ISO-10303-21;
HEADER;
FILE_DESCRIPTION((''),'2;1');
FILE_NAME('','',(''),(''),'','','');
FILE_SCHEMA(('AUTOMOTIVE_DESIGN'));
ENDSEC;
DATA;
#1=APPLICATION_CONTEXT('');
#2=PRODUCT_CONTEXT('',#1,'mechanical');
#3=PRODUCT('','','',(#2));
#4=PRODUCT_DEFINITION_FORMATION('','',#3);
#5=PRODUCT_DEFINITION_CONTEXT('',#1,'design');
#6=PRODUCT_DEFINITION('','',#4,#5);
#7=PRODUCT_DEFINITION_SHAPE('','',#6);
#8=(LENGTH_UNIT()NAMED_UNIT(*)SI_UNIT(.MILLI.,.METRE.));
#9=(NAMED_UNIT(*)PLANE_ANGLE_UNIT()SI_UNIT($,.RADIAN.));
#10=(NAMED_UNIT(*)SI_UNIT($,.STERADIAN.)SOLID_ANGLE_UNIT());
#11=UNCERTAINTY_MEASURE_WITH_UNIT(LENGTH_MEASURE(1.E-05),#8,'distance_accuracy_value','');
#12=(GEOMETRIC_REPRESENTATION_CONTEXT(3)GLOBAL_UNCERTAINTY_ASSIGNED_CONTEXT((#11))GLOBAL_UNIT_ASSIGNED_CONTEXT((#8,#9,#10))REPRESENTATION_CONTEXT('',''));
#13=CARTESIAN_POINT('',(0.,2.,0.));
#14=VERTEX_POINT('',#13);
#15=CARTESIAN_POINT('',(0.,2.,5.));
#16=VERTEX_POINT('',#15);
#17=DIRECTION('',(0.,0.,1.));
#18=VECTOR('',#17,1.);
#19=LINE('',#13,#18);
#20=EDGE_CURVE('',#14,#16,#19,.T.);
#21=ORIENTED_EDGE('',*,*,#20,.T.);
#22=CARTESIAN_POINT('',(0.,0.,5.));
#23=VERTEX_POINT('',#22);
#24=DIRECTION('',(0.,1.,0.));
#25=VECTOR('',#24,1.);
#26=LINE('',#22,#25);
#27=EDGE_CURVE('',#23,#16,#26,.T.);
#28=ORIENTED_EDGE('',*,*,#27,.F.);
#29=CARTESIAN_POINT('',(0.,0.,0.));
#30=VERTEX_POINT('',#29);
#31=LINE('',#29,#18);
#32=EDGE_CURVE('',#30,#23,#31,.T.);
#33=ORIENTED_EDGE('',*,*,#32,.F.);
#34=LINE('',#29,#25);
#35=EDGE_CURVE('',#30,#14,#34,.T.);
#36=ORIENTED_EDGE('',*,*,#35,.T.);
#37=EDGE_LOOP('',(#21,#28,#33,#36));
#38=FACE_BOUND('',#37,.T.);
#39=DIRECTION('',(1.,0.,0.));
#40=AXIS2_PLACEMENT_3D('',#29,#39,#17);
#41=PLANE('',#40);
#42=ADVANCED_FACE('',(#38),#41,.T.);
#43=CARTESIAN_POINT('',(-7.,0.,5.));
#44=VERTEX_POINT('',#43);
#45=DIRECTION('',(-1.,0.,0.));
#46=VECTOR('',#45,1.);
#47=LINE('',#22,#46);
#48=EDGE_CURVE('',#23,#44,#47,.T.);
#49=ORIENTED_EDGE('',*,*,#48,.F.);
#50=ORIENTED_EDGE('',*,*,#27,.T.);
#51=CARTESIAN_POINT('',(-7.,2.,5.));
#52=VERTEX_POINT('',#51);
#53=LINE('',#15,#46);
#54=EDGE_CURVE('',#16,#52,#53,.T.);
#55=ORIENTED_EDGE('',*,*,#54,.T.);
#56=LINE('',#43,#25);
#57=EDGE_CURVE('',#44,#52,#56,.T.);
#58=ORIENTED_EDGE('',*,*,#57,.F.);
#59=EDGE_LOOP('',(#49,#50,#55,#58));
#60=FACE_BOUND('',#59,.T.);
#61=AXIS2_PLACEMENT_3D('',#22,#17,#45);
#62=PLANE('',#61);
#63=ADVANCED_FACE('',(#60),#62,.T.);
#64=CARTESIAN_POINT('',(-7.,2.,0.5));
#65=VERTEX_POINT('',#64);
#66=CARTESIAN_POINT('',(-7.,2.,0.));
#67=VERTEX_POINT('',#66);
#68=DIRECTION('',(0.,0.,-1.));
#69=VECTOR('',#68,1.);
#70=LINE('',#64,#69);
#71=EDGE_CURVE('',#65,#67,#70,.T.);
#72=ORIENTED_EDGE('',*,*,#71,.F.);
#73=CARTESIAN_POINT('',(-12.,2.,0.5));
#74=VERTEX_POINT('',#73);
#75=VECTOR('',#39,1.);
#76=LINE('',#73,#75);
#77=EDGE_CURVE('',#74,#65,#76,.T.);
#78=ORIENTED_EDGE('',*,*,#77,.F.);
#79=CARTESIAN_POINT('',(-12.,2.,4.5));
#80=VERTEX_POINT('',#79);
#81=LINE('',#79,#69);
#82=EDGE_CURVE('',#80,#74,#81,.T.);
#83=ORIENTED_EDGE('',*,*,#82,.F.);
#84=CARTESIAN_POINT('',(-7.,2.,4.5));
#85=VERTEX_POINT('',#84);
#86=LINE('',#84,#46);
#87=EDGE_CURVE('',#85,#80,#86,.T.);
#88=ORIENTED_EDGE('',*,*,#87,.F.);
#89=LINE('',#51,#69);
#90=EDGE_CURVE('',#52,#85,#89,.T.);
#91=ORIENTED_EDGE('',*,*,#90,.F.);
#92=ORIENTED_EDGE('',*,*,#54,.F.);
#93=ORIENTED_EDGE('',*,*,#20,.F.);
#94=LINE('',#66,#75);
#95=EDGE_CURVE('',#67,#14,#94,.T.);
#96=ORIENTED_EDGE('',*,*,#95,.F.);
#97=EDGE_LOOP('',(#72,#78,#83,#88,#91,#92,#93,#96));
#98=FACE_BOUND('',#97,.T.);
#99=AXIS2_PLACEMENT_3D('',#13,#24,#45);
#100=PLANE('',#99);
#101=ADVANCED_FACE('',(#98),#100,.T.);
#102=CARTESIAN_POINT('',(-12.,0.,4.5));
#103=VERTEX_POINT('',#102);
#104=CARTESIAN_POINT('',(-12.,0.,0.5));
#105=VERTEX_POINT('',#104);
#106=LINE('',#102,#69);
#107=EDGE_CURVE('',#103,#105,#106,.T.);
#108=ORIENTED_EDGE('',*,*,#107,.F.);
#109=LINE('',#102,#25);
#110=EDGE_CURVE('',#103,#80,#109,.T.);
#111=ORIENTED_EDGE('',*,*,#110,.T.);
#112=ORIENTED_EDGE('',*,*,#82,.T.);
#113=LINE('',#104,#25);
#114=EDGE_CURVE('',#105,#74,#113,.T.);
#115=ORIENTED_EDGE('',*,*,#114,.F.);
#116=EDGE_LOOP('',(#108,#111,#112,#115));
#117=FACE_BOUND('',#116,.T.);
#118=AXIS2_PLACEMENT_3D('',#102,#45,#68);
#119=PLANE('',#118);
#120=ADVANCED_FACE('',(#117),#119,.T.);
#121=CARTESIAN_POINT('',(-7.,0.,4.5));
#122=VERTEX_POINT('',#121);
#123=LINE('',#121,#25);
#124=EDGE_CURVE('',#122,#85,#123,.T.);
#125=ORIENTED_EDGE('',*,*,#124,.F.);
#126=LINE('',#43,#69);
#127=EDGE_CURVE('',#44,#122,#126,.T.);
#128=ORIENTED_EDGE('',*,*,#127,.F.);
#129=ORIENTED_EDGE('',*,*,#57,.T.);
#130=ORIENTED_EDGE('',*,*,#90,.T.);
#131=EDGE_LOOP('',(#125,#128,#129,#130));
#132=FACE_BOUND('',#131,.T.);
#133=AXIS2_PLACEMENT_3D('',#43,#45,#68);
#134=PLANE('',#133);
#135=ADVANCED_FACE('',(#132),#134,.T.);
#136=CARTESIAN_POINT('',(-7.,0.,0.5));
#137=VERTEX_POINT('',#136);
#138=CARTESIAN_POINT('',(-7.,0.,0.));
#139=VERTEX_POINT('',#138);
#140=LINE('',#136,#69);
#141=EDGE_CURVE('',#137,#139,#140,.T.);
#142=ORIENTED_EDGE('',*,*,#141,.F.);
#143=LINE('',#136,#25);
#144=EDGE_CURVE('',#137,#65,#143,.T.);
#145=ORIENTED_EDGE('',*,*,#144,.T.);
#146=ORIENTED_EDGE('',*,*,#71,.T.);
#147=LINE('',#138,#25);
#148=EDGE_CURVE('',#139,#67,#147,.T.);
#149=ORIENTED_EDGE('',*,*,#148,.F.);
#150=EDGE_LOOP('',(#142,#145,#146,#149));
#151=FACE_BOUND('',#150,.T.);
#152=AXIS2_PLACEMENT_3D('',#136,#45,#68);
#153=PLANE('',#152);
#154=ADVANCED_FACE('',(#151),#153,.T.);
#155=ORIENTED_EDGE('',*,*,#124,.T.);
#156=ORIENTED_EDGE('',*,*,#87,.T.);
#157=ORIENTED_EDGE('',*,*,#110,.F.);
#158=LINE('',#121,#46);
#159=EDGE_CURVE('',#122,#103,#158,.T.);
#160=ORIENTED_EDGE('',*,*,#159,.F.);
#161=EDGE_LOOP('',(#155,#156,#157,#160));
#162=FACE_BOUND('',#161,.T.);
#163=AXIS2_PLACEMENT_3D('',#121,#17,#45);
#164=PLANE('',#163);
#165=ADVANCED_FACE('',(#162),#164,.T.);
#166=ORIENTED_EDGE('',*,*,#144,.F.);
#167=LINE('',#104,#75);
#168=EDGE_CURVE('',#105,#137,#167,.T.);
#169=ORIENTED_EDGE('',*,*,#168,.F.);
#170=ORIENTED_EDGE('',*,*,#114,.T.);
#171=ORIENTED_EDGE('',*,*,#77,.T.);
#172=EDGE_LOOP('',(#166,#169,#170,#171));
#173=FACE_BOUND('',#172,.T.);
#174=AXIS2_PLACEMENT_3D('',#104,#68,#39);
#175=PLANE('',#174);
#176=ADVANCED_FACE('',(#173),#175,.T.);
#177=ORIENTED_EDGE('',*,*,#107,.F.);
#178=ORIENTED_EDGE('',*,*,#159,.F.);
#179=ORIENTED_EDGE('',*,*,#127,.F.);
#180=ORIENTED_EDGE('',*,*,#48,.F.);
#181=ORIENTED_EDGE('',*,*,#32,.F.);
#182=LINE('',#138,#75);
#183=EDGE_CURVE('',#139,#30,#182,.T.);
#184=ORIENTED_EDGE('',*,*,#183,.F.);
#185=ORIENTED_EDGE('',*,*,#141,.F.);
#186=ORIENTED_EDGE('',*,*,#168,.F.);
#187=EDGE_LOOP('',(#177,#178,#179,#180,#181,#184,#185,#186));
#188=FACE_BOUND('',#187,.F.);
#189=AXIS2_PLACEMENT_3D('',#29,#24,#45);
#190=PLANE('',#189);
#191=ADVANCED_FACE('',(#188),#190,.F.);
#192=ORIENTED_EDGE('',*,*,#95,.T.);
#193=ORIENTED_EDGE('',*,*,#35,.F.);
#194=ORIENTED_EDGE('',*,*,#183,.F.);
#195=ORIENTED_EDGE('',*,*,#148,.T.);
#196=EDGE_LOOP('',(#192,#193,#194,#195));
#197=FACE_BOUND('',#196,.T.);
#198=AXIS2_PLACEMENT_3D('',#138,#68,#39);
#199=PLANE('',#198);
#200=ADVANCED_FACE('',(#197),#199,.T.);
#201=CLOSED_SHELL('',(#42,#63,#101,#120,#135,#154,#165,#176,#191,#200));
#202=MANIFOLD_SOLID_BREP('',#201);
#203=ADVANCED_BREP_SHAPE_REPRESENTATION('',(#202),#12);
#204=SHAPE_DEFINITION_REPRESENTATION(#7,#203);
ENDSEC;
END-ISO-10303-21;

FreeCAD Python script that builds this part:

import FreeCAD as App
import Part
import Sketcher


def add_polygon(sketch, points):
    """Adds a closed chain of lines whose ends are joined by coincident constraints."""
    first, n = sketch.GeometryCount, len(points)
    for a, b in zip(points, points[1:] + points[:1]):
        sketch.addGeometry(Part.LineSegment(App.Vector(*a, 0), App.Vector(*b, 0)), False)
    for i in range(n):
        sketch.addConstraint(Sketcher.Constraint("Coincident", first + i, 2, first + (i + 1) % n, 1))

doc = App.newDocument("Part")
params = doc.addObject("Spreadsheet::Sheet", "Params")
for row, (alias, value) in enumerate([
    ("sketch1_width", "7 mm"),
    ("sketch1_width2", "5 mm"),
    ("sketch1_height", "4 mm"),
    ("pad1_length", "2 mm"),
], start=1):
    params.set(f"A{row}", alias)
    params.set(f"B{row}", "=" + value)
    params.setAlias(f"B{row}", alias)

body = doc.addObject("PartDesign::Body", "Body")

# Sketch on XZ plane
sketch1 = body.newObject("Sketcher::SketchObject", "Sketch")
sketch1.AttachmentSupport = (doc.getObject("XZ_Plane"), [""])
sketch1.MapMode = "FlatFace"
add_polygon(sketch1, [(0, 5), (0, 0), (-7, 0), (-7, 0.5), (-12, 0.5), (-12, 4.5), (-7, 4.5), (-7, 5)])  # lines 0-7
sketch1.addConstraint(Sketcher.Constraint("Vertical", 0))
sketch1.addConstraint(Sketcher.Constraint("Horizontal", 1))
sketch1.addConstraint(Sketcher.Constraint("Vertical", 2))
sketch1.addConstraint(Sketcher.Constraint("Horizontal", 3))
sketch1.addConstraint(Sketcher.Constraint("Vertical", 4))
sketch1.addConstraint(Sketcher.Constraint("Horizontal", 5))
sketch1.addConstraint(Sketcher.Constraint("Vertical", 6))
sketch1.addConstraint(Sketcher.Constraint("Horizontal", 7))
sketch1.addConstraint(Sketcher.Constraint("Coincident", 0, 2, -1, 1))
sketch1.addConstraint(Sketcher.Constraint("Vertical", 2, 2, 5, 2))
sketch1.addConstraint(Sketcher.Constraint("Equal", 5, 0))
sketch1.addConstraint(Sketcher.Constraint("Equal", 2, 6))
sketch1.addConstraint(Sketcher.Constraint("DistanceX", 1, 2, 1, 1, 7.0))
sketch1.addConstraint(Sketcher.Constraint("DistanceX", 3, 2, 3, 1, 5.0))
sketch1.addConstraint(Sketcher.Constraint("DistanceY", 4, 1, 4, 2, 4.0))
sketch1.setExpression("Constraints[20]", "Params.sketch1_width")
sketch1.setExpression("Constraints[21]", "Params.sketch1_width2")
sketch1.setExpression("Constraints[22]", "Params.sketch1_height")
pad1 = body.newObject("PartDesign::Pad", "Pad")
pad1.Profile = sketch1
pad1.setExpression("Length", "Params.pad1_length")
pad1.Reversed = True

doc.recompute()
